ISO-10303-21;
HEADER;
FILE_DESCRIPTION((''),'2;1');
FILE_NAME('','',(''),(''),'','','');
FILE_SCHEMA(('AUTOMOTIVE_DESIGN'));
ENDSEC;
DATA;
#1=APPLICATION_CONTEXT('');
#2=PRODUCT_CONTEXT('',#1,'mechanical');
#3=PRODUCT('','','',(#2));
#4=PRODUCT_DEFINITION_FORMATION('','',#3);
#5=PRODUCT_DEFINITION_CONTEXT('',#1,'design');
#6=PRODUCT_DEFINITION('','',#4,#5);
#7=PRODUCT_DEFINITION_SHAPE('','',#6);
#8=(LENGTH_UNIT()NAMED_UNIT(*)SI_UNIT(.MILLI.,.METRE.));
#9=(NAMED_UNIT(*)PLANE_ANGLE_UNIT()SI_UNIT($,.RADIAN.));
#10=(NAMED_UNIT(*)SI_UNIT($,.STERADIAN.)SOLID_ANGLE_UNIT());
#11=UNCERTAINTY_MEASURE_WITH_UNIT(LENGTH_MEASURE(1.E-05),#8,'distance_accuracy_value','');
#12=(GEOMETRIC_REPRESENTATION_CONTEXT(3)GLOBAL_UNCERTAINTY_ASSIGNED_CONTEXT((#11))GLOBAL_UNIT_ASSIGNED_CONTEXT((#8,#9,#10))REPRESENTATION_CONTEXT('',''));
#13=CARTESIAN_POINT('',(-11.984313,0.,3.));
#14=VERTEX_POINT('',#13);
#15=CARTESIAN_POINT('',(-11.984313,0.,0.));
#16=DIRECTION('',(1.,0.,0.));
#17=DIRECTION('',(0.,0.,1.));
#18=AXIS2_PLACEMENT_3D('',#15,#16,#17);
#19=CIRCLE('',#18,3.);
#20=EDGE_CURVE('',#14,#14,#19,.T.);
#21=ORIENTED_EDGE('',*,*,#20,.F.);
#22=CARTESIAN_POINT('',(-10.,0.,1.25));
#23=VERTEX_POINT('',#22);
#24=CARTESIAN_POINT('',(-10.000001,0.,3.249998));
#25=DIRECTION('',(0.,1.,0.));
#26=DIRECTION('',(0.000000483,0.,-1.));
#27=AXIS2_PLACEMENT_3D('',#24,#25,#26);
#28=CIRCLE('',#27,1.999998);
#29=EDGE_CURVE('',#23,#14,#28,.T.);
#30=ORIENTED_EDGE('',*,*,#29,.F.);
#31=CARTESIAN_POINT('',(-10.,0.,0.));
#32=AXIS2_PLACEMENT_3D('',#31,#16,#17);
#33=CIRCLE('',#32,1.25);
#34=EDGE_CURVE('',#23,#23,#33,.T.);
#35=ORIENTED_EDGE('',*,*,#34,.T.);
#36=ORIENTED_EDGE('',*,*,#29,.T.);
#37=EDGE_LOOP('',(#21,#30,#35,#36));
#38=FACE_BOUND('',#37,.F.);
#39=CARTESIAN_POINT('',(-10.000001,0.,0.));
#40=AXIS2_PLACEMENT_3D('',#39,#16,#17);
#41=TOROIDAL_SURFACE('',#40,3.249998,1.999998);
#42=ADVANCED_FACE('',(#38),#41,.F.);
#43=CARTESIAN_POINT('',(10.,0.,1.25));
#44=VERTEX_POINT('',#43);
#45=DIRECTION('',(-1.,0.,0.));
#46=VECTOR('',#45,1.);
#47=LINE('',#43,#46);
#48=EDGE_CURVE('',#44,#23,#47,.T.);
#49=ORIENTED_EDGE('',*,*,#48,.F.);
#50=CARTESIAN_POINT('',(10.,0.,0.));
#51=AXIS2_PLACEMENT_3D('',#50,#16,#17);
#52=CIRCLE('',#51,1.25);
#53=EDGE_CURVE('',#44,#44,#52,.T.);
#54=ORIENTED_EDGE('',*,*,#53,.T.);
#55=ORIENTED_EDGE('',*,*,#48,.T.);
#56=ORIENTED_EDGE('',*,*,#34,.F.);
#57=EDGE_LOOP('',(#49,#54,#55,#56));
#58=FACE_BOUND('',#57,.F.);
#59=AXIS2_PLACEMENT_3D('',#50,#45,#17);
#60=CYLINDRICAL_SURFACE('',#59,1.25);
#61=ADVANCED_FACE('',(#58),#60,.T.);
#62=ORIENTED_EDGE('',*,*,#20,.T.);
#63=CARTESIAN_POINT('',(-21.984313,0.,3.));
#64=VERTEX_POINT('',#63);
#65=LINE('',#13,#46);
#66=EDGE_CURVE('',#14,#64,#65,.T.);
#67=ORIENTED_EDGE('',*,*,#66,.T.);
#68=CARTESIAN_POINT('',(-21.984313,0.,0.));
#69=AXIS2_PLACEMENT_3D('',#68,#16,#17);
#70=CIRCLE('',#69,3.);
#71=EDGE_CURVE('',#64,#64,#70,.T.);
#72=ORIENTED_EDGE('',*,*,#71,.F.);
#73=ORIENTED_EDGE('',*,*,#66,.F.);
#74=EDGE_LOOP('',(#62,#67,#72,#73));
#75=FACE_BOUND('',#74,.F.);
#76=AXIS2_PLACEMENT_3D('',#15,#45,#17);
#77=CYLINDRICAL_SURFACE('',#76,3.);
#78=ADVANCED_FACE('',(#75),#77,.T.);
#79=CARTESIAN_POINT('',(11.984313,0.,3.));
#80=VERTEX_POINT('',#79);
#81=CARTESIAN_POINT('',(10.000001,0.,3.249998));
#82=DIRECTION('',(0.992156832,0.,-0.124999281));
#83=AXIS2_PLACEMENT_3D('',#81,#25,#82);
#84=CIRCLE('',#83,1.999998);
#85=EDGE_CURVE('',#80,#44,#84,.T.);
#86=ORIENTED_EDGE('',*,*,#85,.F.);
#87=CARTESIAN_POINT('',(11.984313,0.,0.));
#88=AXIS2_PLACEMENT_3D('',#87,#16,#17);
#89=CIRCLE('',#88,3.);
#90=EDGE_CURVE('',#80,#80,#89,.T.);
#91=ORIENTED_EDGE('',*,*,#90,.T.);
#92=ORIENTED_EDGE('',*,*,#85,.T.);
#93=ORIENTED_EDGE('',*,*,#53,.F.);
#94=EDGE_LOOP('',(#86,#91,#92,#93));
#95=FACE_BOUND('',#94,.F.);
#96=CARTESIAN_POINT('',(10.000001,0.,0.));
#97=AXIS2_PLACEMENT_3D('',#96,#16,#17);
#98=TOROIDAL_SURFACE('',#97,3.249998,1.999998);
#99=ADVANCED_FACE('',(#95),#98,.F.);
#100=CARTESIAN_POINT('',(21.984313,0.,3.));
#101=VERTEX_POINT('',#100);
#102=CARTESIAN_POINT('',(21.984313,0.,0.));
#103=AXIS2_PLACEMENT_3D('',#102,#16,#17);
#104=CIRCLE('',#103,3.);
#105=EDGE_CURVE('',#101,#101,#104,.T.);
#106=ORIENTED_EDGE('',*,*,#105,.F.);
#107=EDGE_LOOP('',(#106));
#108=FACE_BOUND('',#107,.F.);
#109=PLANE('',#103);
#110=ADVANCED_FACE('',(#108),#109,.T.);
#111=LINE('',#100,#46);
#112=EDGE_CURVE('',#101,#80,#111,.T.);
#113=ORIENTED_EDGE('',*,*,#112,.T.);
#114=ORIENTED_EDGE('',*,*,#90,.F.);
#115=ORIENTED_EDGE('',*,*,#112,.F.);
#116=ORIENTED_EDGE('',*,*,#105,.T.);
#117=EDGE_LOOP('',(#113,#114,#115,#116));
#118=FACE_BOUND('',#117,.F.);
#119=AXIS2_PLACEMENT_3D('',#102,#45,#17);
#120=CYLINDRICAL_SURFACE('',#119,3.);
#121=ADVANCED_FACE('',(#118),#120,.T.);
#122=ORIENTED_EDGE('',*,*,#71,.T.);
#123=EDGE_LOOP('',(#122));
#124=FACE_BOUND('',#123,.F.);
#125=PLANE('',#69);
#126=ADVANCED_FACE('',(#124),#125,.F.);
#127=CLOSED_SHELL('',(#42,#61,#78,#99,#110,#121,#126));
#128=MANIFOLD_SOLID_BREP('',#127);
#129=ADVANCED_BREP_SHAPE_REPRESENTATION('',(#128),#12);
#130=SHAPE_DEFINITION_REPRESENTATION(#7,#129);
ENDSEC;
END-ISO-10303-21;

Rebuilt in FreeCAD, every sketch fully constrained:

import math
import FreeCAD as App
import Part
import Sketcher

V = App.Vector

doc = App.newDocument("Part")
body = doc.addObject("PartDesign::Body", "Body")

# Sketch on XZ plane
sketch1 = body.newObject("Sketcher::SketchObject", "Sketch")
sketch1.AttachmentSupport = (doc.getObject("XZ_Plane"), [""])
sketch1.MapMode = "FlatFace"
sketch1.addGeometry(Part.LineSegment(V(-22, 0, 0), V(22, 0, 0)), False)
sketch1.addGeometry(Part.LineSegment(V(22, 0, 0), V(22, 3, 0)), False)
sketch1.addGeometry(Part.LineSegment(V(22, 3, 0), V(12, 3, 0)), False)
sketch1.addGeometry(Part.ArcOfCircle(Part.Circle(V(10, 3.2, 0), V(0, 0, 1), 2), math.radians(-90), math.radians(-7)), False)
sketch1.addGeometry(Part.LineSegment(V(10, 1.2, 0), V(-10, 1.2, 0)), False)
sketch1.addGeometry(Part.ArcOfCircle(Part.Circle(V(-10, 3.2, 0), V(0, 0, 1), 2), math.radians(-173), math.radians(-90)), False)
sketch1.addGeometry(Part.LineSegment(V(-12, 3, 0), V(-22, 3, 0)), False)
sketch1.addGeometry(Part.LineSegment(V(-22, 3, 0), V(-22, 0, 0)), False)
sketch1.addConstraint(Sketcher.Constraint("Coincident", 0, 2, 1, 1))
sketch1.addConstraint(Sketcher.Constraint("Coincident", 1, 2, 2, 1))
sketch1.addConstraint(Sketcher.Constraint("Coincident", 2, 2, 3, 2))
sketch1.addConstraint(Sketcher.Constraint("Tangent", 3, 1, 4, 1))
sketch1.addConstraint(Sketcher.Constraint("Tangent", 4, 2, 5, 2))
sketch1.addConstraint(Sketcher.Constraint("Coincident", 5, 1, 6, 1))
sketch1.addConstraint(Sketcher.Constraint("Coincident", 6, 2, 7, 1))
sketch1.addConstraint(Sketcher.Constraint("Coincident", 7, 2, 0, 1))
sketch1.addConstraint(Sketcher.Constraint("Horizontal", 0))
sketch1.addConstraint(Sketcher.Constraint("Vertical", 1))
sketch1.addConstraint(Sketcher.Constraint("Horizontal", 2))
sketch1.addConstraint(Sketcher.Constraint("Horizontal", 4))
sketch1.addConstraint(Sketcher.Constraint("Horizontal", 6))
sketch1.addConstraint(Sketcher.Constraint("Vertical", 7))
sketch1.addConstraint(Sketcher.Constraint("Equal", 3, 5))
sketch1.addConstraint(Sketcher.Constraint("Symmetric", 0, 2, 7, 2, -1, 1))
sketch1.addConstraint(Sketcher.Constraint("Symmetric", 2, 2, 5, 1, -2))
sketch1.addConstraint(Sketcher.Constraint("Radius", 3, 1.999998))
sketch1.addConstraint(Sketcher.Constraint("DistanceX", 2, 2, 2, 1, 10.0))
sketch1.addConstraint(Sketcher.Constraint("DistanceX", 4, 2, 4, 1, 20.0))
sketch1.addConstraint(Sketcher.Constraint("DistanceY", 1, 1, 1, 2, 3.0))
sketch1.addConstraint(Sketcher.Constraint("DistanceY", -1, 1, 3, 3, 3.249998))
revolution = body.newObject("PartDesign::Revolution", "Revolution")
revolution.Profile = sketch1
revolution.ReferenceAxis = (sketch1, ["H_Axis"])
revolution.Angle = 360

doc.recompute()
